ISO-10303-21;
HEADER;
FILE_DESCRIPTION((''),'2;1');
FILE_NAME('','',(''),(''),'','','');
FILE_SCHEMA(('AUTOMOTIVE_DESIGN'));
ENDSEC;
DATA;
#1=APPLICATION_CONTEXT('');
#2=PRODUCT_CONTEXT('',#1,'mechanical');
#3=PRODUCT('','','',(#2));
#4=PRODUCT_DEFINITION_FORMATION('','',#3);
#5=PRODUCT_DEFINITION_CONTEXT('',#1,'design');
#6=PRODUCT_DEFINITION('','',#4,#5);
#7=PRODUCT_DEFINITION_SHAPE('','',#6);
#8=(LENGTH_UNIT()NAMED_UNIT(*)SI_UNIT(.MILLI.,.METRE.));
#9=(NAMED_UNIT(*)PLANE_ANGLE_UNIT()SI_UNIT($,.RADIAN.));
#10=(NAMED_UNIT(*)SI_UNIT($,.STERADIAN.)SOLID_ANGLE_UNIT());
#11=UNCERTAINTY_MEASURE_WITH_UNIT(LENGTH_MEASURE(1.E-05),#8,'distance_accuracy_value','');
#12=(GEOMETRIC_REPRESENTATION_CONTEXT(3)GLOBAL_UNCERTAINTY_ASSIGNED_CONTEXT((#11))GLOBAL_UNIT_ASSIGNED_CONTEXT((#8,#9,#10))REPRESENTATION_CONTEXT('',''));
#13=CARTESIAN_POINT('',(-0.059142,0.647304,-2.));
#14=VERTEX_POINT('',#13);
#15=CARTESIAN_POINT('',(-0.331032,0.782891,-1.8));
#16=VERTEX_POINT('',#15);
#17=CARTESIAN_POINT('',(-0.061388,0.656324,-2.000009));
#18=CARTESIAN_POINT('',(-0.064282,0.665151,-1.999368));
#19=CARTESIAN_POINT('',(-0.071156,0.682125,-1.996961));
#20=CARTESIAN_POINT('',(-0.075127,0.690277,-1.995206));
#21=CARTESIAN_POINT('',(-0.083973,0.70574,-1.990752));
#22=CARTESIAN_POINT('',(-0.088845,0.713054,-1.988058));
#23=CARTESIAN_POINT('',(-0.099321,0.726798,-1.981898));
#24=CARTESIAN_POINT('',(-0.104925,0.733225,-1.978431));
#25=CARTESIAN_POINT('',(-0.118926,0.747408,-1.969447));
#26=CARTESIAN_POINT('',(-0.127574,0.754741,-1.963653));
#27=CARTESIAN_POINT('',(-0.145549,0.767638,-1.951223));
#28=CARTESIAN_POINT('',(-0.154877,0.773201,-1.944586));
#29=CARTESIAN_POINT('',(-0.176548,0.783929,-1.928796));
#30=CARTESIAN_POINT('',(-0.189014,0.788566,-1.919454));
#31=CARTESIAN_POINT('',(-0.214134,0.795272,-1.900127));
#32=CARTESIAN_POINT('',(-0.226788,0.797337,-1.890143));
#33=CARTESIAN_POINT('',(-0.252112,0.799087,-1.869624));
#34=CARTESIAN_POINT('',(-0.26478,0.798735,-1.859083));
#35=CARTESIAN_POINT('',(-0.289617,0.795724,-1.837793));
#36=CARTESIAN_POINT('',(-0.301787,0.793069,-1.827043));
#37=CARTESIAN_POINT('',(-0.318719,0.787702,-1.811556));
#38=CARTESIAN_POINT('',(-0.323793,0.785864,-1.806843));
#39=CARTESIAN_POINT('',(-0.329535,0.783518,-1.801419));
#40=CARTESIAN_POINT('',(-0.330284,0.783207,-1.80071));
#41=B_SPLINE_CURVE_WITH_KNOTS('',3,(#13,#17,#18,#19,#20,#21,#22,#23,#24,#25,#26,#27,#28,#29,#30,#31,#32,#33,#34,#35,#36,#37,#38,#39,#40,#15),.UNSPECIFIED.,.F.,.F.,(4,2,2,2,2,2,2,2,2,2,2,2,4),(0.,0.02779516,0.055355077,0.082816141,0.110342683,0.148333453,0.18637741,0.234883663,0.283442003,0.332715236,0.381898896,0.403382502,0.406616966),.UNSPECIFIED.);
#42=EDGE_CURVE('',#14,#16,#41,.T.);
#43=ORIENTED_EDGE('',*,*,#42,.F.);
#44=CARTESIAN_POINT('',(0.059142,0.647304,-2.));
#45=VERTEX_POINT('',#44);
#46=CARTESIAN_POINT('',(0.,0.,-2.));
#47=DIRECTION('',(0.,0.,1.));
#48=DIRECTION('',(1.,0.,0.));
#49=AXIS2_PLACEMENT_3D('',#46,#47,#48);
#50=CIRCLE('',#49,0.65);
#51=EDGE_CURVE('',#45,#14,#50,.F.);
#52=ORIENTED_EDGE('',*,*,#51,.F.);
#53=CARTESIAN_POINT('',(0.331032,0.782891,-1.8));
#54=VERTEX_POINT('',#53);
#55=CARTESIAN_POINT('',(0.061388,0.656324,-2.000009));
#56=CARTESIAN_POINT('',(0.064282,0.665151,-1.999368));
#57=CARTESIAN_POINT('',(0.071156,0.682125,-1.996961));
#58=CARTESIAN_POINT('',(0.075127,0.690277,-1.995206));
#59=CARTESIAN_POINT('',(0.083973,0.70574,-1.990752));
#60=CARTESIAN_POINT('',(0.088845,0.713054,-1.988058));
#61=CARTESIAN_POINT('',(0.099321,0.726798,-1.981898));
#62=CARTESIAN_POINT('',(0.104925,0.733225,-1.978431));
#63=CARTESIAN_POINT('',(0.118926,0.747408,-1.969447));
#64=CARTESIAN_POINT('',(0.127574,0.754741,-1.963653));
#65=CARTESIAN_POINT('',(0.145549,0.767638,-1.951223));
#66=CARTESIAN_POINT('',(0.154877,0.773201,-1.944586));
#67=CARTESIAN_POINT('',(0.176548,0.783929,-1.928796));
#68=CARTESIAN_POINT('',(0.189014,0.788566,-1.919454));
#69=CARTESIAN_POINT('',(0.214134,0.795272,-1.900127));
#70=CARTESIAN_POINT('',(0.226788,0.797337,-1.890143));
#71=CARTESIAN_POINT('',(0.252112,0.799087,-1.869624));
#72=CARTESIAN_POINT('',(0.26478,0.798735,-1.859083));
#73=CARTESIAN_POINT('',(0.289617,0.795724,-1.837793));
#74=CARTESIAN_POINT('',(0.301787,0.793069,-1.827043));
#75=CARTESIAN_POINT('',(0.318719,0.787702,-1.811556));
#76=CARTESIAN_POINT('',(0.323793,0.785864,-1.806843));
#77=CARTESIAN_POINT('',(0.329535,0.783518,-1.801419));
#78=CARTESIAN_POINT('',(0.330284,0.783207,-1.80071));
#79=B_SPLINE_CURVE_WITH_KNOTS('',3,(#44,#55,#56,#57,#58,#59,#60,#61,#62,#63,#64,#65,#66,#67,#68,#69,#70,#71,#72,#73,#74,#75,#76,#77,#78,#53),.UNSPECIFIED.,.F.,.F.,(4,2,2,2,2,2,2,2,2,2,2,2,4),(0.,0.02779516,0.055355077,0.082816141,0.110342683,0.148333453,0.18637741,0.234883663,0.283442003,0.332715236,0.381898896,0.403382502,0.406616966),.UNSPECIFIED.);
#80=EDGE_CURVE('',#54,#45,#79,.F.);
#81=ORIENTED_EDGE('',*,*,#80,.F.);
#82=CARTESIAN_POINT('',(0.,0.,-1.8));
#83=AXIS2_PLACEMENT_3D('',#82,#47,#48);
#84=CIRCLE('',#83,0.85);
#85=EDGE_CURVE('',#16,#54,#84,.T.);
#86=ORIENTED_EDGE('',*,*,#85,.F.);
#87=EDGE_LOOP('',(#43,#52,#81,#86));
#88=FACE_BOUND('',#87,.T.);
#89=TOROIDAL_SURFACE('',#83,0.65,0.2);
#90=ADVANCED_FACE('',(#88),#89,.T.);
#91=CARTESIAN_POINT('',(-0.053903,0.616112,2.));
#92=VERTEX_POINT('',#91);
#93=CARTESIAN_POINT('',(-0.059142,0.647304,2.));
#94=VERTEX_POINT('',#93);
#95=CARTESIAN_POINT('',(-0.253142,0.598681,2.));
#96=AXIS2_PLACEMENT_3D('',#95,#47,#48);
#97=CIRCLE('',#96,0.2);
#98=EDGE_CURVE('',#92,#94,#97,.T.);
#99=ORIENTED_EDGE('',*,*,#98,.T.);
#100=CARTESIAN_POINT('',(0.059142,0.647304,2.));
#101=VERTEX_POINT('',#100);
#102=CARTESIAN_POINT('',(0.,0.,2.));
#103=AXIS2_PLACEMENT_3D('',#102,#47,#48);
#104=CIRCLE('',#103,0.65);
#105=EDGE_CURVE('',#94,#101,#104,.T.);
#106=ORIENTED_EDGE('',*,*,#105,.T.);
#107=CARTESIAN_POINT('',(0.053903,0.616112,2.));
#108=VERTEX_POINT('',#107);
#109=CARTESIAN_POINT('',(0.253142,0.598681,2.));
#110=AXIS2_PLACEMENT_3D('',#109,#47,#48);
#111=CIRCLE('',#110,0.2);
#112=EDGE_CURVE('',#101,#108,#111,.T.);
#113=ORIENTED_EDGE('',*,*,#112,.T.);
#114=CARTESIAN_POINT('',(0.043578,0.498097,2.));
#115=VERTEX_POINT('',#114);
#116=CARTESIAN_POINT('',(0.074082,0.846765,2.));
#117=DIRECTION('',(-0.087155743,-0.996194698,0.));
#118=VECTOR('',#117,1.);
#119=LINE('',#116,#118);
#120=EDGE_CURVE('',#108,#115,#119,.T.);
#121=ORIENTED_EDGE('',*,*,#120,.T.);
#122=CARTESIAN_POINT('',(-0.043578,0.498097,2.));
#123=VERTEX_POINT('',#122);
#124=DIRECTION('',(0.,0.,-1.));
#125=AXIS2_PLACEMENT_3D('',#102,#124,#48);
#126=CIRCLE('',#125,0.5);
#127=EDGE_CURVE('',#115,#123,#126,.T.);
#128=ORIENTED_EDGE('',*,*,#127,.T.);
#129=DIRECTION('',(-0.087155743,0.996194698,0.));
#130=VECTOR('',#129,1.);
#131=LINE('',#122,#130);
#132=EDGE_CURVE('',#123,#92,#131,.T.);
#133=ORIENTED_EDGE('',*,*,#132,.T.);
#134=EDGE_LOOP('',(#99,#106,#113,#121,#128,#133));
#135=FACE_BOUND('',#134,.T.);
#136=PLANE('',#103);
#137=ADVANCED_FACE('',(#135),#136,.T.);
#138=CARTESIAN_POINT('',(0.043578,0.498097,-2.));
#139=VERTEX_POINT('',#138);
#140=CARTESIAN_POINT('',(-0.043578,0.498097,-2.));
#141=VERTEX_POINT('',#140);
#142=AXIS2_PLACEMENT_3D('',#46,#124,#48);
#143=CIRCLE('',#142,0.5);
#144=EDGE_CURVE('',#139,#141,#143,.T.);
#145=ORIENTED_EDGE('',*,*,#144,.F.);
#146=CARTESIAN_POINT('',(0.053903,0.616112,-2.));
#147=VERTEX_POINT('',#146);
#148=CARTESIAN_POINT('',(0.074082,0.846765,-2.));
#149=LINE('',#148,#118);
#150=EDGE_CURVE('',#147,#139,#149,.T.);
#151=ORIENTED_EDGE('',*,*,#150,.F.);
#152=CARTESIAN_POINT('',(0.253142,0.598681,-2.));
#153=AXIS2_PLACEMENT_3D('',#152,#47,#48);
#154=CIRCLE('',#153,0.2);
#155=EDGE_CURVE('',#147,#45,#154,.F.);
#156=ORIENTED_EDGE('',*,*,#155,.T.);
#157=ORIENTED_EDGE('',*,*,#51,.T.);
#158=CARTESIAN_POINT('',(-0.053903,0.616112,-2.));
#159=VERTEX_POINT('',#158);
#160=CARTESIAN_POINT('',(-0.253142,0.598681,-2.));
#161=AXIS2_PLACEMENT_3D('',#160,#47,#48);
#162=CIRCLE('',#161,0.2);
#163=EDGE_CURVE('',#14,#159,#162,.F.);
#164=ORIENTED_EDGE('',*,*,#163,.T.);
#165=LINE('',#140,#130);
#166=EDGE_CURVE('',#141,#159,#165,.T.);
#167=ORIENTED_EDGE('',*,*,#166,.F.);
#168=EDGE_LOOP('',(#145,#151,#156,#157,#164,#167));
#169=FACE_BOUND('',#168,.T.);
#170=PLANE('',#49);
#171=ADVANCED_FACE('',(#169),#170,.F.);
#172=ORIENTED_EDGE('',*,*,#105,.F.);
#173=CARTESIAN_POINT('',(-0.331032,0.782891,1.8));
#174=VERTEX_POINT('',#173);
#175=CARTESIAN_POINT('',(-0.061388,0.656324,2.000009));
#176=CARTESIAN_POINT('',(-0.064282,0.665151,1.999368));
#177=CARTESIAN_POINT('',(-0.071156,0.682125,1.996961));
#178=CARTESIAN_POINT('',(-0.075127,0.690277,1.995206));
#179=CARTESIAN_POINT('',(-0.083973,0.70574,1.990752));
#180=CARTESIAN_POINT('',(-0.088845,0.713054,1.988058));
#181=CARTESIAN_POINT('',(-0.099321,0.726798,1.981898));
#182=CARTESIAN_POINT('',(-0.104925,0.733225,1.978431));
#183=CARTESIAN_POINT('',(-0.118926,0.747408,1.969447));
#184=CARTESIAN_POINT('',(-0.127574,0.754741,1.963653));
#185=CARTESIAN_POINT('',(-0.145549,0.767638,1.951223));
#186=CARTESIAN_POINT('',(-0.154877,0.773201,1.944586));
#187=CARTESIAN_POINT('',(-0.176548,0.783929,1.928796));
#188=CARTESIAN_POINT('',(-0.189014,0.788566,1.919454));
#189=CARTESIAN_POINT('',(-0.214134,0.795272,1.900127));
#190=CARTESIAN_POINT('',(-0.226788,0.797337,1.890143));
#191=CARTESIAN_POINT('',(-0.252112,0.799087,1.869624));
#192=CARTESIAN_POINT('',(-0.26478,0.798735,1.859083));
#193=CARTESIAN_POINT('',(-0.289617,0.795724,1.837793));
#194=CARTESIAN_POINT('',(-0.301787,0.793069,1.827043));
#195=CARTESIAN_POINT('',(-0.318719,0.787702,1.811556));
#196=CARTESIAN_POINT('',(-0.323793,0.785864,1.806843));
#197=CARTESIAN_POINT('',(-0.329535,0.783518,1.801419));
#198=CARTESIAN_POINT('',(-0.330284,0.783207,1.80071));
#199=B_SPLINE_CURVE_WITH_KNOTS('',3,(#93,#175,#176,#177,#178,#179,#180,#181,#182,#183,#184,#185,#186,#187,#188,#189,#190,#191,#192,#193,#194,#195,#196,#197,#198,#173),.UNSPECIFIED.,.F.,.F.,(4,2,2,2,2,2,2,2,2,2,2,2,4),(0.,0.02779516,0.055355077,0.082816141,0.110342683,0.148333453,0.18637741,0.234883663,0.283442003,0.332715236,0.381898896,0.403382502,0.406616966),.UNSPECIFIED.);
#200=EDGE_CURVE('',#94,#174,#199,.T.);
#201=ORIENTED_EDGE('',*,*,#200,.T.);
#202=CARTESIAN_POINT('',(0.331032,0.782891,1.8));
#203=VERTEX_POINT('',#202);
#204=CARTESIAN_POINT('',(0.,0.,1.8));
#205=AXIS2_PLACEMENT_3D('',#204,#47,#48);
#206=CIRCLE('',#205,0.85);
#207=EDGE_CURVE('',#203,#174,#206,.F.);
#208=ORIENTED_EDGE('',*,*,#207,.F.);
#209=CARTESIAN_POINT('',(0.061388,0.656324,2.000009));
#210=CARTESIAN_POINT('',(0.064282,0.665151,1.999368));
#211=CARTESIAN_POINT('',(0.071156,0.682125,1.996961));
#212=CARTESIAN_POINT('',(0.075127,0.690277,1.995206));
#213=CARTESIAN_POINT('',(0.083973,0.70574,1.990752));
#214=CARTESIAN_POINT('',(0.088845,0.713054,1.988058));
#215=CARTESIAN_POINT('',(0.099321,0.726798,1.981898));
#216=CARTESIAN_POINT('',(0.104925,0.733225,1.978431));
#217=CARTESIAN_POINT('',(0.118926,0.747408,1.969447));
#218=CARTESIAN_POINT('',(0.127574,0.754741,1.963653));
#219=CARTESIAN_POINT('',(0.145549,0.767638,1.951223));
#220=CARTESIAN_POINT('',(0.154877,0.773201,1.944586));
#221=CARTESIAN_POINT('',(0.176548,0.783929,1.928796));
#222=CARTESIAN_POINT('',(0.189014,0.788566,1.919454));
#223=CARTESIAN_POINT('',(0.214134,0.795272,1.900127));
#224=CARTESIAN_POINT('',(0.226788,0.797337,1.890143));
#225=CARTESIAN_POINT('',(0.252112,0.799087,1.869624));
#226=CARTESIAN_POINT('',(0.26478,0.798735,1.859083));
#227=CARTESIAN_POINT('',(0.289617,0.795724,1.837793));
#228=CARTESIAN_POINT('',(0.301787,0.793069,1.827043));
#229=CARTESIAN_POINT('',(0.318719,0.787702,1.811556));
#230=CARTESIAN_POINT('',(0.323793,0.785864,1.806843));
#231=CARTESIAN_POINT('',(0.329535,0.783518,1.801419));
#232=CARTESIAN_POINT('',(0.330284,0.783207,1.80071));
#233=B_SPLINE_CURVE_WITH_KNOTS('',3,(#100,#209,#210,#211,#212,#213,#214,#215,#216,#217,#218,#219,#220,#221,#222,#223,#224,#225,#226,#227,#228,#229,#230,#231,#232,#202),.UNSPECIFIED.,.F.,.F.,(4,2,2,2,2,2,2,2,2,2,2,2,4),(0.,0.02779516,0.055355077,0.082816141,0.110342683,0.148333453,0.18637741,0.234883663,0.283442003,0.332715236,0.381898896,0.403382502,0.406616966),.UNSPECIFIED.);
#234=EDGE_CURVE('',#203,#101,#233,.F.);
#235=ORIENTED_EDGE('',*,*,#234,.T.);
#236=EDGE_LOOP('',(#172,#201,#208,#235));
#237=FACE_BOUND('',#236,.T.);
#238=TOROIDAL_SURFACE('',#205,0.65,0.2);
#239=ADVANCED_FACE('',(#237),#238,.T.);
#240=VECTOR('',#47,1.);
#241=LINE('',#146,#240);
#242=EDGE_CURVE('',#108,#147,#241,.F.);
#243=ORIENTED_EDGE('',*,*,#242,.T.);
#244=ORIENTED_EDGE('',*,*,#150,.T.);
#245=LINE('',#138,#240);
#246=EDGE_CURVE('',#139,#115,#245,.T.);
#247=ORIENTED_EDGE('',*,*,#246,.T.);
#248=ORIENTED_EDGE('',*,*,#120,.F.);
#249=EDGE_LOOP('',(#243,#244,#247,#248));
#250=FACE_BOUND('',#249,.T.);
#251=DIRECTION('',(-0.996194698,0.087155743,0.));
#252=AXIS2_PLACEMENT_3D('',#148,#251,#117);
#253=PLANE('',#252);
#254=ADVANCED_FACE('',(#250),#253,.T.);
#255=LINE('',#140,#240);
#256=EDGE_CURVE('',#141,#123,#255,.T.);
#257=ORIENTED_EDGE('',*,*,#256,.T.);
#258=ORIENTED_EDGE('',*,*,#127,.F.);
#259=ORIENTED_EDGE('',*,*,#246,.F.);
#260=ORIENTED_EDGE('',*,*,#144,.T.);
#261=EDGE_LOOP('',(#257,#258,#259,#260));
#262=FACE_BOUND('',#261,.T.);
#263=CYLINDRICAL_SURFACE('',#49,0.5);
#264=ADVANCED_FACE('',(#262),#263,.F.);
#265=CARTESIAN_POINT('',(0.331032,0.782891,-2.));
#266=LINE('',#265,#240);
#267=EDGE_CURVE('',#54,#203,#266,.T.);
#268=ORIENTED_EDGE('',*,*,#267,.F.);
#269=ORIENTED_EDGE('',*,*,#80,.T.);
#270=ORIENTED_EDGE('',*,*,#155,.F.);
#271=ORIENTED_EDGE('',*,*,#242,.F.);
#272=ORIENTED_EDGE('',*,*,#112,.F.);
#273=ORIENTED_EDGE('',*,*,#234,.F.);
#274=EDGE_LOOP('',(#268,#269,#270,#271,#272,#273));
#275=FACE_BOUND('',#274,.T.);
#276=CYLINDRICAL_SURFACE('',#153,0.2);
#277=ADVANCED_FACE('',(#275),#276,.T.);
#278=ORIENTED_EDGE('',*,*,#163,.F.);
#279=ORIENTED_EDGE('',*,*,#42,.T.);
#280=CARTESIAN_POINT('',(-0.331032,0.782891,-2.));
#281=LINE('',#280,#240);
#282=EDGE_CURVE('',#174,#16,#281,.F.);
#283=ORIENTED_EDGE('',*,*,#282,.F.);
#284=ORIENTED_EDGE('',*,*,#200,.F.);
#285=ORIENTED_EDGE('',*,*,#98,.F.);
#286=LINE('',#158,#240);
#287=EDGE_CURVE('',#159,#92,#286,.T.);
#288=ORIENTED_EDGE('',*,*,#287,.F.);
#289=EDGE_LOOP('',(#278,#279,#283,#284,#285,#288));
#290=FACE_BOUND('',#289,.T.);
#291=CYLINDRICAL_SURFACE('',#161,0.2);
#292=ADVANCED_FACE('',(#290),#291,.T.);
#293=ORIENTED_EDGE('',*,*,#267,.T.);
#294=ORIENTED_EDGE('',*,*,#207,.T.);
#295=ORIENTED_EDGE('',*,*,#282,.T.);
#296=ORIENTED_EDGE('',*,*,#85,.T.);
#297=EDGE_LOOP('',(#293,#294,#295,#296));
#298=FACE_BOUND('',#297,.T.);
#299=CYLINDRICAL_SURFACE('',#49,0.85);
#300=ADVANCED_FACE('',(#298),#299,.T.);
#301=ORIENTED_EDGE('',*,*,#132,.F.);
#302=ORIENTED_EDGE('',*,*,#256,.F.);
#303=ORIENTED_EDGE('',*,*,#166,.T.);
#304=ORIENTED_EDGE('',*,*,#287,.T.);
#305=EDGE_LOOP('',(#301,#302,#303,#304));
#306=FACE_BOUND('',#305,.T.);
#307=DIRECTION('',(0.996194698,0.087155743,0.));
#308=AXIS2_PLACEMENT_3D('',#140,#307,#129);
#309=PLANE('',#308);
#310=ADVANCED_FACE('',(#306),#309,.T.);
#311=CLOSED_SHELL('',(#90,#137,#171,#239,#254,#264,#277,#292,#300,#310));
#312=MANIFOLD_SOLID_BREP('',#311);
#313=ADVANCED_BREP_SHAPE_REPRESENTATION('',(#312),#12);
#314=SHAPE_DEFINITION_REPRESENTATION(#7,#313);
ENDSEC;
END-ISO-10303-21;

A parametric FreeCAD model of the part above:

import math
import FreeCAD as App
import Part
import Sketcher
Q = App.Units.Quantity


def edges_at(feature, points):
    """Names of the edges that pass closest to the given points."""
    edges = feature.Shape.Edges
    near = lambda p: min(range(len(edges)), key=lambda i: edges[i].distToShape(Part.Vertex(*p))[0])
    return sorted({f"Edge{near(p) + 1}" for p in points})

doc = App.newDocument("Part")
body = doc.addObject("PartDesign::Body", "Body")

# Sketch on XY plane
sketch1 = body.newObject("Sketcher::SketchObject", "Sketch")
sketch1.AttachmentSupport = (doc.getObject("XY_Plane"), [""])
sketch1.MapMode = "FlatFace"
sketch1.addGeometry([
    Part.LineSegment(App.Vector(0.074082, 0.846765, 0), App.Vector(0.043578, 0.498097, 0)),
    Part.ArcOfCircle(Part.Circle(App.Vector(0, 0, 0), App.Vector(0, 0, 1), 0.5), math.radians(95), math.radians(445)),
    Part.LineSegment(App.Vector(-0.043578, 0.498097, 0), App.Vector(-0.074082, 0.846765, 0)),
    Part.ArcOfCircle(Part.Circle(App.Vector(0, 0, 0), App.Vector(0, 0, 1), 0.85), math.radians(95), math.radians(445)),
], False)
sketch1.addConstraint([
    Sketcher.Constraint("Coincident", 0, 2, 1, 2),
    Sketcher.Constraint("Coincident", 1, 1, 2, 1),
    Sketcher.Constraint("Coincident", 2, 2, 3, 1),
    Sketcher.Constraint("Coincident", 3, 2, 0, 1),
    Sketcher.Constraint("Coincident", 1, 3, -1, 1),
    Sketcher.Constraint("Coincident", 3, 3, -1, 1),
    Sketcher.Constraint("Horizontal", 0, 2, 1, 1),
    Sketcher.Constraint("Horizontal", 2, 2, 3, 2),
    Sketcher.Constraint("Radius", 1, Q("0.5 mm")),
    Sketcher.Constraint("Angle", 0, Q("-95 deg")),
    Sketcher.Constraint("Radius", 3, Q("0.85 mm")),
    Sketcher.Constraint("DistanceX", 2, 2, 0, 2, Q("0.11766 mm")),
])
pad1 = body.newObject("PartDesign::Pad", "Pad")
pad1.Profile = sketch1
pad1.Type = "TwoLengths"
pad1.Length = 2
pad1.Length2 = 2
doc.recompute()

fillet = body.newObject("PartDesign::Fillet", "Fillet")
fillet.Base = (pad1, edges_at(pad1, [
    (0, -0.85, 2),
    (0, -0.85, -2),
    (-0.074, 0.847, 0),
    (0.074, 0.847, 0),
]))
fillet.Radius = 0.2

doc.recompute()
